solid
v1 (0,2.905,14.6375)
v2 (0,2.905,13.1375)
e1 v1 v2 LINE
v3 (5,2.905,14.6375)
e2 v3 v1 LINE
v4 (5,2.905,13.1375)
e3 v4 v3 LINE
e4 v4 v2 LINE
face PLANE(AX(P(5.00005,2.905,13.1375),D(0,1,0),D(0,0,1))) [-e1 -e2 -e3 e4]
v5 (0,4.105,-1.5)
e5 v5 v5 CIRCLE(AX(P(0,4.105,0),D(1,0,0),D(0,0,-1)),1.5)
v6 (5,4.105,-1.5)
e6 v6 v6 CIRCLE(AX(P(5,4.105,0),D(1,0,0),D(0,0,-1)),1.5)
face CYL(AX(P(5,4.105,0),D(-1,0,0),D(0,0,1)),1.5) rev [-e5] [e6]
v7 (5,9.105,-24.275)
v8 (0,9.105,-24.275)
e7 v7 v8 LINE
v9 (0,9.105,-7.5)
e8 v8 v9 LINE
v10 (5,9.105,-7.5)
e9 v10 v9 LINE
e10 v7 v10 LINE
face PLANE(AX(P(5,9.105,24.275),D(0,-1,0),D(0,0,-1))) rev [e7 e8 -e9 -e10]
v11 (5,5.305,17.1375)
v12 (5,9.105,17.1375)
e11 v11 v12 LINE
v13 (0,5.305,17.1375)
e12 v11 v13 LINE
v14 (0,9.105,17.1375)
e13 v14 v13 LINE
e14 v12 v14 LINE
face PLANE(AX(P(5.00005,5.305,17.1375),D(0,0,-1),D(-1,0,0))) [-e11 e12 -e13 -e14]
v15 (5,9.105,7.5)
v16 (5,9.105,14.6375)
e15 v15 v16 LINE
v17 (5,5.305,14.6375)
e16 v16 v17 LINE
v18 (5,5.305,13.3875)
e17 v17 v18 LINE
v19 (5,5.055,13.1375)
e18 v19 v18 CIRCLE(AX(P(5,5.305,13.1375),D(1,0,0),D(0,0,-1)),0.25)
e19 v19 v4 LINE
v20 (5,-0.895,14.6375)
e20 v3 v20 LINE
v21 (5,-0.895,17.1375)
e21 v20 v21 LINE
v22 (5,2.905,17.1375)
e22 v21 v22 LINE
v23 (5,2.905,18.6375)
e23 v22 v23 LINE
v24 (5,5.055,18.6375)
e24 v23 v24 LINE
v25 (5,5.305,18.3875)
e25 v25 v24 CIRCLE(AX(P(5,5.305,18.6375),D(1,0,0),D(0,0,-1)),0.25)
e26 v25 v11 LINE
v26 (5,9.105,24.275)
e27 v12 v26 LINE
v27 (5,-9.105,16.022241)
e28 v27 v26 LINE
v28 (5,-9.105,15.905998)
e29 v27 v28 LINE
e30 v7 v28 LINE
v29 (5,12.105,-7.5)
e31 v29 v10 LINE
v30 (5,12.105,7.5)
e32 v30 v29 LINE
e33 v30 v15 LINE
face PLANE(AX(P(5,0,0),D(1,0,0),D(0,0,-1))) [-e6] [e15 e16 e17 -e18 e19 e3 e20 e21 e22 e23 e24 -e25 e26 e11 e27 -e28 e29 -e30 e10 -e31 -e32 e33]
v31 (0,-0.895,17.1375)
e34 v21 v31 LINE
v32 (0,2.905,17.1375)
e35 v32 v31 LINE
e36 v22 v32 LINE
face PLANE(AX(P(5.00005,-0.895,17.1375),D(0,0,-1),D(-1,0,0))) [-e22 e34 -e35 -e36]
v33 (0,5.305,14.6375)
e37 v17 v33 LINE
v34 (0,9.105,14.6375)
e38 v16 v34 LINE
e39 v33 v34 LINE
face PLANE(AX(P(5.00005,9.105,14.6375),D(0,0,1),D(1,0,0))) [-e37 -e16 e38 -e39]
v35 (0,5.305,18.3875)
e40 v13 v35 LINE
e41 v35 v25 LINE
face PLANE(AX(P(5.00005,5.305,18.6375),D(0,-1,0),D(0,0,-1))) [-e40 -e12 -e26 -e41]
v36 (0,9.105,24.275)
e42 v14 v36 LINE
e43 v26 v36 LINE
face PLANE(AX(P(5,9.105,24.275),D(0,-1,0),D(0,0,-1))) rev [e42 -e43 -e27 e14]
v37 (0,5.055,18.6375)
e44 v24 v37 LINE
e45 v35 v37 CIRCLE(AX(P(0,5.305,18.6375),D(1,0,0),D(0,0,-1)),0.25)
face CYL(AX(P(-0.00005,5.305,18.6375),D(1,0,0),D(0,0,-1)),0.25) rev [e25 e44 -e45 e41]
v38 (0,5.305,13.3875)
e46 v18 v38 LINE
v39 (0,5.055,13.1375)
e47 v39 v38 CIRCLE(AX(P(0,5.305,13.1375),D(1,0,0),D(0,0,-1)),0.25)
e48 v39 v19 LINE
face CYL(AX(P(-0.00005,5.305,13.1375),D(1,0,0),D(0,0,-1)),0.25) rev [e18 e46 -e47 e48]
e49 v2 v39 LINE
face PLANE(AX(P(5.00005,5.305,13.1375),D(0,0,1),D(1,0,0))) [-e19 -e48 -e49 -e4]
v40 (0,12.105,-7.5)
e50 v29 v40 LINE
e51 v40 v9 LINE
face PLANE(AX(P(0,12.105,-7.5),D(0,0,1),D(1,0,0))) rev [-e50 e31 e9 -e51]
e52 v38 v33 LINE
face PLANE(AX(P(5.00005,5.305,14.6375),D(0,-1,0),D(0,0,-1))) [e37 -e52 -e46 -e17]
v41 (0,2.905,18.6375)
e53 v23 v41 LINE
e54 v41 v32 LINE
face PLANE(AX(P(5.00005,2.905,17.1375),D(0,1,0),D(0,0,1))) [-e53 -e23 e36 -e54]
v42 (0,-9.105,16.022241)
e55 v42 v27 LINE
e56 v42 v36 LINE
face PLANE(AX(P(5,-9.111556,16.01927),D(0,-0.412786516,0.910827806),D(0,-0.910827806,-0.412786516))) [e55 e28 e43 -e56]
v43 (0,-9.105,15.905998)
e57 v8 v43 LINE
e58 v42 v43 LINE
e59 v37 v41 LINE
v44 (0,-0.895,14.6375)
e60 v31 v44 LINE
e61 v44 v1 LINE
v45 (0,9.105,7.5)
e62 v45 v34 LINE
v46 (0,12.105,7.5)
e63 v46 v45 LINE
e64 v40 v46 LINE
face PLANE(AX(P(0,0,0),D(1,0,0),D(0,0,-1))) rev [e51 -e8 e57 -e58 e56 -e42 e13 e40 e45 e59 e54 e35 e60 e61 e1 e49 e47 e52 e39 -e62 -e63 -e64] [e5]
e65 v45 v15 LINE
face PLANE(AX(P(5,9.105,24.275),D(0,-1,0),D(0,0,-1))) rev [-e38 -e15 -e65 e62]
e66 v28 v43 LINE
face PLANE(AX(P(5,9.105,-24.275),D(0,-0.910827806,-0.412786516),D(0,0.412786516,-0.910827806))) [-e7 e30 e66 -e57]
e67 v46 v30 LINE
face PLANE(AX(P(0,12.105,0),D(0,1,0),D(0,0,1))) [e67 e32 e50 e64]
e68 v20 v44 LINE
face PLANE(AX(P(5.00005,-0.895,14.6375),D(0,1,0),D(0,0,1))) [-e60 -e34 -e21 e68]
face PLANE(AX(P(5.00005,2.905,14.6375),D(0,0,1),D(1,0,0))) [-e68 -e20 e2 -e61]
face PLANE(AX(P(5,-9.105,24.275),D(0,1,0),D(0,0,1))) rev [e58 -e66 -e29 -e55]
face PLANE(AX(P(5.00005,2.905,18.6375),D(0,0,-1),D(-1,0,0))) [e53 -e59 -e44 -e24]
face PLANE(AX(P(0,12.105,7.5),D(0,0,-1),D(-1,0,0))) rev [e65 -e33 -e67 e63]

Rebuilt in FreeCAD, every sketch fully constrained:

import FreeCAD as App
import Part
import Sketcher
Q = App.Units.Quantity


def add_polygon(sketch, points):
    """Adds a closed chain of lines whose ends are joined by coincident constraints."""
    first, n = sketch.GeometryCount, len(points)
    for a, b in zip(points, points[1:] + points[:1]):
        sketch.addGeometry(Part.LineSegment(App.Vector(*a, 0), App.Vector(*b, 0)), False)
    for i in range(n):
        sketch.addConstraint(Sketcher.Constraint("Coincident", first + i, 2, first + (i + 1) % n, 1))

doc = App.newDocument("Part")
body = doc.addObject("PartDesign::Body", "Body")

# Sketch on YZ plane
sketch1 = body.newObject("Sketcher::SketchObject", "Sketch")
sketch1.AttachmentSupport = (doc.getObject("YZ_Plane"), [""])
sketch1.MapMode = "FlatFace"
add_polygon(sketch1, [(9, 24), (-9, 24), (-9, -24), (9, -24)])  # lines 0-3
sketch1.addConstraint([
    Sketcher.Constraint("Horizontal", 0),
    Sketcher.Constraint("Vertical", 1),
    Sketcher.Constraint("Horizontal", 2),
    Sketcher.Constraint("Vertical", 3),
    Sketcher.Constraint("Symmetric", 0, 2, 2, 2, -1, 1),
    Sketcher.Constraint("DistanceX", 0, 2, 0, 1, Q("18.21 mm")),
    Sketcher.Constraint("DistanceY", 1, 2, 1, 1, Q("48.55 mm")),
])
pad1 = body.newObject("PartDesign::Pad", "Pad")
pad1.Profile = sketch1
pad1.Length = 5

# Sketch on YZ plane
sketch2 = body.newObject("Sketcher::SketchObject", "Sketch001")
sketch2.AttachmentSupport = (doc.getObject("YZ_Plane"), [""])
sketch2.MapMode = "FlatFace"
add_polygon(sketch2, [(9, -24), (-9, 16), (-9, -24)])  # lines 0-2
add_polygon(sketch2, [(9, 24), (-9, 24), (-9, 16)])  # lines 3-5
sketch2.addConstraint([
    Sketcher.Constraint("Vertical", 1),
    Sketcher.Constraint("Horizontal", 2),
    Sketcher.Constraint("Horizontal", 3),
    Sketcher.Constraint("Symmetric", 2, 2, 3, 2, -1, 1),
    Sketcher.Constraint("Perpendicular", 0, 5),
    Sketcher.Constraint("Vertical", 1, 2, 3, 2),
    Sketcher.Constraint("Vertical", 2, 2, 5, 2),
    Sketcher.Constraint("Distance", 5, Q("20 mm")),
    Sketcher.Constraint("DistanceX", 2, 1, 2, 2, Q("18.21 mm")),
    Sketcher.Constraint("Angle", 0, Q("114.38 deg")),
    Sketcher.Constraint("DistanceY", 1, 2, 3, 2, Q("48.55 mm")),
])
pocket1 = body.newObject("PartDesign::Pocket", "Pocket")
pocket1.Profile = sketch2
pocket1.Type = "ThroughAll"
pocket1.Reversed = True

# Sketch on YZ plane
sketch3 = body.newObject("Sketcher::SketchObject", "Sketch002")
sketch3.AttachmentSupport = (doc.getObject("YZ_Plane"), [""])
sketch3.MapMode = "FlatFace"
sketch3.addGeometry(Part.Circle(App.Vector(4.1, 0, 0), App.Vector(0, 0, 1), 1.5), False)
sketch3.addConstraint([
    Sketcher.Constraint("PointOnObject", 0, 3, -1),
    Sketcher.Constraint("Diameter", 0, Q("3 mm")),
    Sketcher.Constraint("DistanceX", -1, 1, 0, 3, Q("4.105 mm")),
])
pocket2 = body.newObject("PartDesign::Pocket", "Pocket001")
pocket2.Profile = sketch3
pocket2.Type = "ThroughAll"
pocket2.Reversed = True

# Sketch on XZ plane
sketch4 = body.newObject("Sketcher::SketchObject", "Sketch003")
sketch4.AttachmentSupport = (doc.getObject("XZ_Plane"), [""])
sketch4.MapMode = "FlatFace"
sketch4.AttachmentOffset = App.Placement(App.Vector(0, 0, -9.105), App.Rotation())
add_polygon(sketch4, [(0, -8), (0, 8), (5, 8), (5, -8)])  # lines 0-3
sketch4.addConstraint([
    Sketcher.Constraint("Vertical", 0),
    Sketcher.Constraint("Horizontal", 1),
    Sketcher.Constraint("Vertical", 2),
    Sketcher.Constraint("Horizontal", 3),
    Sketcher.Constraint("Symmetric", 0, 2, 3, 2, -1, 1),
    Sketcher.Constraint("DistanceX", 1, 1, 1, 2, Q("5 mm")),
    Sketcher.Constraint("DistanceY", 0, 1, 0, 2, Q("15 mm")),
])
pad2 = body.newObject("PartDesign::Pad", "Pad001")
pad2.Profile = sketch4
pad2.Length = 3
pad2.Reversed = True

# Sketch on YZ plane
sketch5 = body.newObject("Sketcher::SketchObject", "Sketch004")
sketch5.AttachmentSupport = (doc.getObject("YZ_Plane"), [""])
sketch5.MapMode = "FlatFace"
add_polygon(sketch5, [(2.9, 17.1), (-0.9, 17.1), (-0.9, 14.6), (2.9, 14.6), (2.9, 13.1), (5.3, 13.1), (5.3, 14.6), (9.1, 14.6), (9.1, 17.1), (5.3, 17.1), (5.3, 18.6), (2.9, 18.6)])  # lines 0-11
sketch5.addConstraint([
    Sketcher.Constraint("Horizontal", 0),
    Sketcher.Constraint("Vertical", 1),
    Sketcher.Constraint("Horizontal", 2),
    Sketcher.Constraint("Vertical", 3),
    Sketcher.Constraint("Horizontal", 4),
    Sketcher.Constraint("Vertical", 5),
    Sketcher.Constraint("Horizontal", 6),
    Sketcher.Constraint("Vertical", 7),
    Sketcher.Constraint("Horizontal", 8),
    Sketcher.Constraint("Vertical", 9),
    Sketcher.Constraint("Horizontal", 10),
    Sketcher.Constraint("Vertical", 11),
    Sketcher.Constraint("Horizontal", 2, 2, 5, 2),
    Sketcher.Constraint("Horizontal", 0, 2, 7, 2),
    Sketcher.Constraint("Vertical", 5, 2, 8, 2),
    Sketcher.Constraint("Vertical", 3, 2, 10, 2),
    Sketcher.Constraint("Equal", 2, 6),
    Sketcher.Constraint("Equal", 5, 9),
    Sketcher.Constraint("DistanceX", 0, 2, 0, 1, Q("3.8 mm")),
    Sketcher.Constraint("DistanceX", 4, 1, 4, 2, Q("2.4 mm")),
    Sketcher.Constraint("DistanceY", 1, 2, 1, 1, Q("2.5 mm")),
    Sketcher.Constraint("DistanceY", 3, 2, 3, 1, Q("1.5 mm")),
    Sketcher.Constraint("DistanceX", 0, 2, -1, 1, Q("0.895 mm")),
    Sketcher.Constraint("DistanceY", -1, 1, 0, 2, Q("17.1375 mm")),
])
pocket3 = body.newObject("PartDesign::Pocket", "Pocket002")
pocket3.Profile = sketch5
pocket3.Type = "ThroughAll"
pocket3.Reversed = True

# Sketch on YZ plane
sketch6 = body.newObject("Sketcher::SketchObject", "Sketch005")
sketch6.AttachmentSupport = (doc.getObject("YZ_Plane"), [""])
sketch6.MapMode = "FlatFace"
sketch6.AttachmentOffset = App.Placement(App.Vector(0, 0, 5), App.Rotation())
sketch6.addGeometry([
    Part.Circle(App.Vector(5.3, 18.64, 0), App.Vector(0, 0, 1), 0.25),
    Part.Circle(App.Vector(5.3, 13.14, 0), App.Vector(0, 0, 1), 0.25),
], False)
sketch6.addConstraint([
    Sketcher.Constraint("Equal", 0, 1),
    Sketcher.Constraint("Vertical", 0, 3, 1, 3),
    Sketcher.Constraint("Diameter", 0, Q("0.5 mm")),
    Sketcher.Constraint("DistanceY", 1, 3, 0, 3, Q("5.5 mm")),
    Sketcher.Constraint("DistanceX", -1, 1, 0, 3, Q("5.305 mm")),
    Sketcher.Constraint("DistanceY", -1, 1, 0, 3, Q("18.6375 mm")),
])
pocket4 = body.newObject("PartDesign::Pocket", "Pocket003")
pocket4.Profile = sketch6
pocket4.Type = "ThroughAll"

doc.recompute()
